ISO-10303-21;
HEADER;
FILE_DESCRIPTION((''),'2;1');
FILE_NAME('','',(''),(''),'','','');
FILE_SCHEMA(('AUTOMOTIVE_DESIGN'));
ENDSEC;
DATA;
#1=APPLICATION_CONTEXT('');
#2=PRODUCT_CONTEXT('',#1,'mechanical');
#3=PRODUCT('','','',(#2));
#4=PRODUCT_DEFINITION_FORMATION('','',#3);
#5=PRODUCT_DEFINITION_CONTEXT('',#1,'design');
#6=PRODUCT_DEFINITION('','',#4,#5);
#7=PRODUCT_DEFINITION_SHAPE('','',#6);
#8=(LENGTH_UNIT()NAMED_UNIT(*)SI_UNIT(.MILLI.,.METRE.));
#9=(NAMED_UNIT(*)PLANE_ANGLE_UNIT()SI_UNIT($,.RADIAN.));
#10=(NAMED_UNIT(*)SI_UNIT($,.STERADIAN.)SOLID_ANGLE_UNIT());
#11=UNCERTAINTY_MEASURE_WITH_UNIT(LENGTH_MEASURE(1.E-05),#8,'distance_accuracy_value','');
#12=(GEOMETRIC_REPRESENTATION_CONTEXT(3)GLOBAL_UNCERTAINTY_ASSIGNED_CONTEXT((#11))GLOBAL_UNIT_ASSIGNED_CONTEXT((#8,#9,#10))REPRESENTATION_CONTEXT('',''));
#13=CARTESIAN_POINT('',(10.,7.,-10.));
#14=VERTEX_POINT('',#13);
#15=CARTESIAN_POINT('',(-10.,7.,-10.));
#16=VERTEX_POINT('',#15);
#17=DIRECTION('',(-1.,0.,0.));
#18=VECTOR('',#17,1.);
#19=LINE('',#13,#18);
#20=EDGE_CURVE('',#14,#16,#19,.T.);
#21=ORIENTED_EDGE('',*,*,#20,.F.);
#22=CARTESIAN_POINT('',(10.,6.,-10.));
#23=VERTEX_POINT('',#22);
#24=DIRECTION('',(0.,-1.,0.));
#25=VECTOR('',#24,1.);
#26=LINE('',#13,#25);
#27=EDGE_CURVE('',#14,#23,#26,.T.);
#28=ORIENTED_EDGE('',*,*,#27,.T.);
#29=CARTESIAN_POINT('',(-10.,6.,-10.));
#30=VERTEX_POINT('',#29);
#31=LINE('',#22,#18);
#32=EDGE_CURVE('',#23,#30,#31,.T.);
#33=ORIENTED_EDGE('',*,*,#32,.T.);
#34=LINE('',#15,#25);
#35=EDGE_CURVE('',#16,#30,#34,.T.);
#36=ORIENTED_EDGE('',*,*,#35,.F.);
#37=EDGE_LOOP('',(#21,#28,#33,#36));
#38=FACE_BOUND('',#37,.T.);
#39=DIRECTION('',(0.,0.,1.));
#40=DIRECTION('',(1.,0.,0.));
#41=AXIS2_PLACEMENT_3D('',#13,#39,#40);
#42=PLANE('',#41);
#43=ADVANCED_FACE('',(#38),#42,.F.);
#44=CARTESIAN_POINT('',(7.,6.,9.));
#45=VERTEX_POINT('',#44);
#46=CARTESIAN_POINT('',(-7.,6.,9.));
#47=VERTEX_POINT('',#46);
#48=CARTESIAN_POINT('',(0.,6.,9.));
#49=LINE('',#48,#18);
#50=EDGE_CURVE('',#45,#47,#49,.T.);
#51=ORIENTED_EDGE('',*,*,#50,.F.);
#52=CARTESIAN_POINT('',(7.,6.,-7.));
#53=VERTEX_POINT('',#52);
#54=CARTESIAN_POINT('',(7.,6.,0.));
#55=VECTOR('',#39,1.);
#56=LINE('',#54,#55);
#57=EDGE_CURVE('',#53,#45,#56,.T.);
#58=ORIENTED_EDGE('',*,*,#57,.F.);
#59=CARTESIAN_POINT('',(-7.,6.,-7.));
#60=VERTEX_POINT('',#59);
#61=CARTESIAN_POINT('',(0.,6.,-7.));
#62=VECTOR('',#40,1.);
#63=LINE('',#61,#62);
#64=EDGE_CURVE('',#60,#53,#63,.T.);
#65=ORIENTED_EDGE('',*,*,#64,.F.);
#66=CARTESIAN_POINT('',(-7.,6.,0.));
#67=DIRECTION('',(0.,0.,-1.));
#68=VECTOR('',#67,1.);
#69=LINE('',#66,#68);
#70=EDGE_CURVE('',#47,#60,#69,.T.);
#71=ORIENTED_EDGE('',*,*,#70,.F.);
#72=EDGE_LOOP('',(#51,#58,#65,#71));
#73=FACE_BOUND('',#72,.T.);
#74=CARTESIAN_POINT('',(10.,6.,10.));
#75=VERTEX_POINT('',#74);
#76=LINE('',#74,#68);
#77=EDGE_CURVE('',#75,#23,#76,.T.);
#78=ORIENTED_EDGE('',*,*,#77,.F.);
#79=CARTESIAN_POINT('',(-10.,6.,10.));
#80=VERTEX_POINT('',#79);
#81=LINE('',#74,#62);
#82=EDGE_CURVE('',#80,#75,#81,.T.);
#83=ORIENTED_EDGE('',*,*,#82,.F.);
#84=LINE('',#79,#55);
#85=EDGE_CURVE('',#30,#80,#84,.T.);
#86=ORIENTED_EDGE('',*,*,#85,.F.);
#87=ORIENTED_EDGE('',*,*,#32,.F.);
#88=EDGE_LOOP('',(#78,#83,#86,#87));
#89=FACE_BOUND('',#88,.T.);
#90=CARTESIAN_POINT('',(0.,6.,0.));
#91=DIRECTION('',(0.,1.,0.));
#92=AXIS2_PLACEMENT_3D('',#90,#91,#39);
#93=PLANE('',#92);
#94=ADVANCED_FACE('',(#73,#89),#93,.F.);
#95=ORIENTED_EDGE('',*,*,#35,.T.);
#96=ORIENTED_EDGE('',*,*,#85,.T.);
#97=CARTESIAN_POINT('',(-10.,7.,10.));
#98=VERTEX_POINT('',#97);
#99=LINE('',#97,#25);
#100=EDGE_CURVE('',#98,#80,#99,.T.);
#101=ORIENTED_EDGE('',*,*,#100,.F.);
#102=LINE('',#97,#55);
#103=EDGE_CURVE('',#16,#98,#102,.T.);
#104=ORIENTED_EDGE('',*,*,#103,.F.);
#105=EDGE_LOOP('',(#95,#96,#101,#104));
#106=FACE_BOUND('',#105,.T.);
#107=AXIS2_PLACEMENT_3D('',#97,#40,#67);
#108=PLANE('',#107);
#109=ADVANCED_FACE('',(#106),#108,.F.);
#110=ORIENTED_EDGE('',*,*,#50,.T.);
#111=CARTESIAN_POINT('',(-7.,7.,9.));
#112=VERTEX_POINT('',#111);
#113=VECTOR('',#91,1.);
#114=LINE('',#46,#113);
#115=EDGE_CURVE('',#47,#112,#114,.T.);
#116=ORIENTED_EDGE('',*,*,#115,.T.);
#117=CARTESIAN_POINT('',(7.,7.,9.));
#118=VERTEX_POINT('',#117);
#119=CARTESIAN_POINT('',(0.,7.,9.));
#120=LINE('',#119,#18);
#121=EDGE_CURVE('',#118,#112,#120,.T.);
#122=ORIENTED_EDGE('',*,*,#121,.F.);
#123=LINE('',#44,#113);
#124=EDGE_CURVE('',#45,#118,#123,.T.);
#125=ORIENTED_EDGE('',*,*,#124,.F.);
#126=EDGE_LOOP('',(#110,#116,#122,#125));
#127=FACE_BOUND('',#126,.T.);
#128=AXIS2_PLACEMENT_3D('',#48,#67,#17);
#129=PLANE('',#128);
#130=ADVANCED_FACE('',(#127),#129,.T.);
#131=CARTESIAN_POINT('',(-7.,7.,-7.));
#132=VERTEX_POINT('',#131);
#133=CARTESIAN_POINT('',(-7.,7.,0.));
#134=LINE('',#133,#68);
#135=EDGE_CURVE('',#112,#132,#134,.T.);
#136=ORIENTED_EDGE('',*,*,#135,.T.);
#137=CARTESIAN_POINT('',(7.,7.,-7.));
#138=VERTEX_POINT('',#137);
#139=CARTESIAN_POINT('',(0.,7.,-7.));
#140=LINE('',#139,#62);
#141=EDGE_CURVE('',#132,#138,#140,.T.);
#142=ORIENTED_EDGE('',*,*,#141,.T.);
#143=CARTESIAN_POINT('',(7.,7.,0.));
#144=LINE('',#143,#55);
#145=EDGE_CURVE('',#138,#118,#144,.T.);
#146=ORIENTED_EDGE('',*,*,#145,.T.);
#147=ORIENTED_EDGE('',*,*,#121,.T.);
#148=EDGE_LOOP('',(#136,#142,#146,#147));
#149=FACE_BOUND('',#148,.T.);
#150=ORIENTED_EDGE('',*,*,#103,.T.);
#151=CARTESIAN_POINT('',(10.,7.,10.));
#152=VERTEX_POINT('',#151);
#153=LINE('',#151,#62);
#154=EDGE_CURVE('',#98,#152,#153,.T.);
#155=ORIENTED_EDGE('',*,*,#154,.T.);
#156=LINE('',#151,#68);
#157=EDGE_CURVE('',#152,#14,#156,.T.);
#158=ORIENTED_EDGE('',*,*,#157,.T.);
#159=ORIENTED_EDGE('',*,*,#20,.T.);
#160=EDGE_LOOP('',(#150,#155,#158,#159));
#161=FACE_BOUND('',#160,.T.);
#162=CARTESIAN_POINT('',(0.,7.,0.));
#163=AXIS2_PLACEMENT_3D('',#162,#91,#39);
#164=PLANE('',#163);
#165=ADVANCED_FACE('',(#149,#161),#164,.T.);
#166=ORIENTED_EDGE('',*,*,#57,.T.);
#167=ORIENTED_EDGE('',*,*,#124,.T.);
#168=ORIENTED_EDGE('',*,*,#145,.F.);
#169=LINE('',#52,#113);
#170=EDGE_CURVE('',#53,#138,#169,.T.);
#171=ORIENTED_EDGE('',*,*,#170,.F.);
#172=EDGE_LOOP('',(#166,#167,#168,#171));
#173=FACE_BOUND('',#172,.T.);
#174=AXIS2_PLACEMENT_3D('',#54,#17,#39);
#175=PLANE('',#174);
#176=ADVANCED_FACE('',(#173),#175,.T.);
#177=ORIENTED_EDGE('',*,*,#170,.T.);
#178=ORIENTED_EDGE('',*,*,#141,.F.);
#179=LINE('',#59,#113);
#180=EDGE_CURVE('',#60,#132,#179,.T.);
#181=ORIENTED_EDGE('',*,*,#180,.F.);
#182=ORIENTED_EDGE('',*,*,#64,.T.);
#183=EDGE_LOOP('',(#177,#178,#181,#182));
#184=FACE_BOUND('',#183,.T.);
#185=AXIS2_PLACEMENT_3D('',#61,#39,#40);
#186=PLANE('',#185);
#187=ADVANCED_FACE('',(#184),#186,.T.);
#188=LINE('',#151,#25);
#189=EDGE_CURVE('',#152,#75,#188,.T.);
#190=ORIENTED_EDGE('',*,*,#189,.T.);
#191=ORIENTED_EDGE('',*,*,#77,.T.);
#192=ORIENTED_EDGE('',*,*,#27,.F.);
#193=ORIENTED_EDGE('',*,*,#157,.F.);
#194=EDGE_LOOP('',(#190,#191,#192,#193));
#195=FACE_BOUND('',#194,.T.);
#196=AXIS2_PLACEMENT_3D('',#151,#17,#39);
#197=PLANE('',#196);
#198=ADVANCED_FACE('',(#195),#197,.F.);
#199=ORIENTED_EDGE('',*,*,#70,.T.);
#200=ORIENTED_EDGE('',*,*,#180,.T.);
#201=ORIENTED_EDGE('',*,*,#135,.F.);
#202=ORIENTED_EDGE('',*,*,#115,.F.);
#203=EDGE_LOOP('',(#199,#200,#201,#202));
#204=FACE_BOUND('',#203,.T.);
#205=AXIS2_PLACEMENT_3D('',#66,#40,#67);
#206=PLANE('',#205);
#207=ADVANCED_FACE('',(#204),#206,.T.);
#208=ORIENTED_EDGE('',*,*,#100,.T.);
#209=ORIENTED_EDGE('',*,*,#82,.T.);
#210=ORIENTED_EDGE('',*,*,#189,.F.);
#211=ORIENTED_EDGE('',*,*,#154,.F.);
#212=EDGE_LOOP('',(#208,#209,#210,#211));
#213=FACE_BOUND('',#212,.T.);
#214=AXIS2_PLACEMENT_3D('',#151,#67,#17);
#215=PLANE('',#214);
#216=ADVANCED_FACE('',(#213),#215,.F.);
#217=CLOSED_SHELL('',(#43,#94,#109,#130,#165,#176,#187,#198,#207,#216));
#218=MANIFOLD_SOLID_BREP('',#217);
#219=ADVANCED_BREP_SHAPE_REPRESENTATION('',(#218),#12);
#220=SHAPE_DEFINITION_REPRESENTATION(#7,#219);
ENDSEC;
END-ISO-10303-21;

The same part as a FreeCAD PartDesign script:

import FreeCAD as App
import Part
import Sketcher

V = App.Vector
Q = App.Units.Quantity


def add_polygon(sketch, points):
    """Adds a closed chain of lines whose ends are joined by coincident constraints."""
    first, n = sketch.GeometryCount, len(points)
    for a, b in zip(points, points[1:] + points[:1]):
        sketch.addGeometry(Part.LineSegment(App.Vector(*a, 0), App.Vector(*b, 0)), False)
    for i in range(n):
        sketch.addConstraint(Sketcher.Constraint("Coincident", first + i, 2, first + (i + 1) % n, 1))

doc = App.newDocument("Part")
body = doc.addObject("PartDesign::Body", "Body")

sketch1 = body.newObject("Sketcher::SketchObject", "Sketch")
sketch1.AttachmentSupport = (doc.getObject("XZ_Plane"), [""])
sketch1.MapMode = "FlatFace"
add_polygon(sketch1, [(-10, -10), (-10, 10), (10, 10), (10, -10)])
sketch1.addConstraint(Sketcher.Constraint("Vertical", 0))
sketch1.addConstraint(Sketcher.Constraint("Horizontal", 1))
sketch1.addConstraint(Sketcher.Constraint("Vertical", 2))
sketch1.addConstraint(Sketcher.Constraint("Horizontal", 3))
sketch1.addConstraint(Sketcher.Constraint("Symmetric", 0, 2, 2, 2, -1, 1))
sketch1.addConstraint(Sketcher.Constraint("Equal", 3, 0))
sketch1.addConstraint(Sketcher.Constraint("DistanceX", 1, 1, 1, 2, Q("20 mm")))
pad1 = body.newObject("PartDesign::Pad", "Pad")
pad1.Profile = sketch1
pad1.Length = 6
pad1.Reversed = True

sketch2 = body.newObject("Sketcher::SketchObject", "Sketch001")
sketch2.AttachmentSupport = (doc.getObject("XZ_Plane"), [""])
sketch2.MapMode = "FlatFace"
sketch2.AttachmentOffset = App.Placement(V(0, 0, -1), App.Rotation())
add_polygon(sketch2, [(-9, -10), (-9, 9), (9, 9), (9, -10)])
sketch2.addConstraint(Sketcher.Constraint("Vertical", 0))
sketch2.addConstraint(Sketcher.Constraint("Horizontal", 1))
sketch2.addConstraint(Sketcher.Constraint("Vertical", 2))
sketch2.addConstraint(Sketcher.Constraint("Horizontal", 3))
sketch2.addConstraint(Sketcher.Constraint("DistanceX", 1, 1, 1, 2, Q("18 mm")))
sketch2.addConstraint(Sketcher.Constraint("DistanceY", 0, 1, 0, 2, Q("19 mm")))
sketch2.addConstraint(Sketcher.Constraint("DistanceX", 0, 2, -1, 1, Q("9 mm")))
sketch2.addConstraint(Sketcher.Constraint("DistanceY", -1, 1, 0, 2, Q("9 mm")))
pocket1 = body.newObject("PartDesign::Pocket", "Pocket")
pocket1.Profile = sketch2
pocket1.Length = 6

sketch3 = body.newObject("Sketcher::SketchObject", "Sketch002")
sketch3.AttachmentSupport = (doc.getObject("XZ_Plane"), [""])
sketch3.MapMode = "FlatFace"
add_polygon(sketch3, [(-10, 10), (-10, -10), (10, -10), (10, 10)])
sketch3.addConstraint(Sketcher.Constraint("Vertical", 0))
sketch3.addConstraint(Sketcher.Constraint("Horizontal", 1))
sketch3.addConstraint(Sketcher.Constraint("Vertical", 2))
sketch3.addConstraint(Sketcher.Constraint("Horizontal", 3))
sketch3.addConstraint(Sketcher.Constraint("Symmetric", 0, 2, 2, 2, -1, 1))
sketch3.addConstraint(Sketcher.Constraint("Equal", 3, 0))
sketch3.addConstraint(Sketcher.Constraint("DistanceX", 1, 1, 1, 2, Q("20 mm")))
pocket2 = body.newObject("PartDesign::Pocket", "Pocket001")
pocket2.Profile = sketch3
pocket2.Length = 6
body2 = doc.addObject("PartDesign::Body", "Body001")

sketch4 = body2.newObject("Sketcher::SketchObject", "Sketch003")
sketch4.AttachmentSupport = (doc.getObject("XZ_Plane001"), [""])
sketch4.MapMode = "FlatFace"
sketch4.AttachmentOffset = App.Placement(V(0, 0, -6), App.Rotation())
add_polygon(sketch4, [(-10, -10), (-10, 10), (10, 10), (10, -10)])
sketch4.addConstraint(Sketcher.Constraint("Vertical", 0))
sketch4.addConstraint(Sketcher.Constraint("Horizontal", 1))
sketch4.addConstraint(Sketcher.Constraint("Vertical", 2))
sketch4.addConstraint(Sketcher.Constraint("Horizontal", 3))
sketch4.addConstraint(Sketcher.Constraint("Symmetric", 0, 2, 2, 2, -1, 1))
sketch4.addConstraint(Sketcher.Constraint("Equal", 3, 0))
sketch4.addConstraint(Sketcher.Constraint("DistanceX", 1, 1, 1, 2, Q("20 mm")))
pad2 = body2.newObject("PartDesign::Pad", "Pad001")
pad2.Profile = sketch4
pad2.Length = 1
pad2.Reversed = True

sketch5 = body2.newObject("Sketcher::SketchObject", "Sketch004")
sketch5.AttachmentSupport = (doc.getObject("XZ_Plane001"), [""])
sketch5.MapMode = "FlatFace"
sketch5.AttachmentOffset = App.Placement(V(0, 0, -7), App.Rotation())
add_polygon(sketch5, [(-7, -7), (-7, 9), (7, 9), (7, -7)])
sketch5.addConstraint(Sketcher.Constraint("Vertical", 0))
sketch5.addConstraint(Sketcher.Constraint("Horizontal", 1))
sketch5.addConstraint(Sketcher.Constraint("Vertical", 2))
sketch5.addConstraint(Sketcher.Constraint("Horizontal", 3))
sketch5.addConstraint(Sketcher.Constraint("DistanceX", 1, 1, 1, 2, Q("14 mm")))
sketch5.addConstraint(Sketcher.Constraint("DistanceY", 0, 1, 0, 2, Q("16 mm")))
sketch5.addConstraint(Sketcher.Constraint("DistanceX", 0, 2, -1, 1, Q("7 mm")))
sketch5.addConstraint(Sketcher.Constraint("DistanceY", -1, 1, 0, 2, Q("9 mm")))
pocket3 = body2.newObject("PartDesign::Pocket", "Pocket002")
pocket3.Profile = sketch5
pocket3.Length = 1
pocket3.Reversed = True

doc.recompute()
